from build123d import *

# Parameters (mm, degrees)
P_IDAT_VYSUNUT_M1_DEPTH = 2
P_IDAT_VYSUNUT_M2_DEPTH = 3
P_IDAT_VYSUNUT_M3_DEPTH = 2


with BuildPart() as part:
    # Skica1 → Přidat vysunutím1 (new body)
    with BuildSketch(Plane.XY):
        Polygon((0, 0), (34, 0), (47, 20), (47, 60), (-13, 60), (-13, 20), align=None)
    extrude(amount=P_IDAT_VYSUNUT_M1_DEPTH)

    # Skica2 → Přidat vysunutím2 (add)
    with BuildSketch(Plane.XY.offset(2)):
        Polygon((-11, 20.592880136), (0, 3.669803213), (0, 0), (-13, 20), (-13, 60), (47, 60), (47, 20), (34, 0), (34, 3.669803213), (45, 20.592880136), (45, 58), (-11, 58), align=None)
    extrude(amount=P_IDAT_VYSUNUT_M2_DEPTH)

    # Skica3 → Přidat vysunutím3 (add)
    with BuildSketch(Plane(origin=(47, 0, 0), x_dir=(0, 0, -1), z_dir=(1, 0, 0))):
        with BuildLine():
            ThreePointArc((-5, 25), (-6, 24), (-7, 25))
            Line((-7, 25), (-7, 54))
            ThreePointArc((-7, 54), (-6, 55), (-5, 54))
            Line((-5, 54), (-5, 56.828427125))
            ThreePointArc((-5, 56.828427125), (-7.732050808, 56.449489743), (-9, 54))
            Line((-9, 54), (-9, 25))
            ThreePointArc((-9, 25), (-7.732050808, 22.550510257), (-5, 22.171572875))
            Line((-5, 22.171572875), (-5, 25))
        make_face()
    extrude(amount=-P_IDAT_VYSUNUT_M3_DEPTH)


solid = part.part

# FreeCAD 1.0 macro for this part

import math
import FreeCAD as App
import Part
import Sketcher

V = App.Vector

doc = App.newDocument("Part")
params = doc.addObject("Spreadsheet::Sheet", "Params")
for row, (alias, value) in enumerate([
    ("sketch1_width", "34 mm"),
    ("sketch1_width2", "60 mm"),
    ("sketch1_height", "40 mm"),
    ("pad1_length", "2 mm"),
    ("sketch2_width", "56 mm"),
    ("sketch2_width2", "60 mm"),
    ("sketch2_height", "40 mm"),
    ("pad2_length", "3 mm"),
    ("sketch3_radius", "1 mm"),
    ("sketch3_radius2", "3 mm"),
    ("sketch3_width", "29 mm"),
    ("pad3_length", "2 mm"),
], start=1):
    params.set(f"A{row}", alias)
    params.set(f"B{row}", "=" + value)
    params.setAlias(f"B{row}", alias)

body = doc.addObject("PartDesign::Body", "Body")

sketch1 = doc.addObject("Sketcher::SketchObject", "Sketch")
body.addObject(sketch1)
sketch1.AttachmentSupport = (doc.XY_Plane, [""])
sketch1.MapMode = "FlatFace"
sketch1.addGeometry([
    Part.LineSegment(V(0, 0, 0), V(34, 0, 0)),
    Part.LineSegment(V(34, 0, 0), V(47, 20, 0)),
    Part.LineSegment(V(47, 20, 0), V(47, 60, 0)),
    Part.LineSegment(V(47, 60, 0), V(-13, 60, 0)),
    Part.LineSegment(V(-13, 60, 0), V(-13, 20, 0)),
    Part.LineSegment(V(-13, 20, 0), V(0, 0, 0)),
], False)
sketch1.addConstraint([
    Sketcher.Constraint("Coincident", 0, 2, 1, 1),
    Sketcher.Constraint("Coincident", 1, 2, 2, 1),
    Sketcher.Constraint("Coincident", 2, 2, 3, 1),
    Sketcher.Constraint("Coincident", 3, 2, 4, 1),
    Sketcher.Constraint("Coincident", 4, 2, 5, 1),
    Sketcher.Constraint("Coincident", 5, 2, 0, 1),
    Sketcher.Constraint("Horizontal", 0),
    Sketcher.Constraint("Vertical", 2),
    Sketcher.Constraint("Horizontal", 3),
    Sketcher.Constraint("Vertical", 4),
    Sketcher.Constraint("Coincident", 5, 2, -1, 1),
    Sketcher.Constraint("Horizontal", 1, 2, 4, 2),
    Sketcher.Constraint("Equal", 1, 5),
    Sketcher.Constraint("DistanceX", 0, 1, 0, 2, 34.0),
    Sketcher.Constraint("DistanceX", 3, 2, 3, 1, 60.0),
    Sketcher.Constraint("DistanceY", 2, 1, 2, 2, 40.0),
    Sketcher.Constraint("DistanceY", -1, 1, 1, 2, 20.0),
])
sketch1.setExpression("Constraints[13]", "Params.sketch1_width")
sketch1.setExpression("Constraints[14]", "Params.sketch1_width2")
sketch1.setExpression("Constraints[15]", "Params.sketch1_height")
pad1 = doc.addObject("PartDesign::Pad", "Pad")
body.addObject(pad1)
pad1.Profile = sketch1
pad1.setExpression("Length", "Params.pad1_length")

sketch2 = doc.addObject("Sketcher::SketchObject", "Sketch001")
body.addObject(sketch2)
sketch2.AttachmentSupport = (doc.XY_Plane, [""])
sketch2.MapMode = "FlatFace"
sketch2.AttachmentOffset = App.Placement(V(0, 0, 2), App.Rotation())
sketch2.addGeometry([
    Part.LineSegment(V(0, 3.7, 0), V(-11, 20.6, 0)),
    Part.LineSegment(V(-11, 20.6, 0), V(-11, 58, 0)),
    Part.LineSegment(V(-11, 58, 0), V(45, 58, 0)),
    Part.LineSegment(V(45, 58, 0), V(45, 20.6, 0)),
    Part.LineSegment(V(45, 20.6, 0), V(34, 3.7, 0)),
    Part.LineSegment(V(34, 3.7, 0), V(34, 0, 0)),
    Part.LineSegment(V(34, 0, 0), V(47, 20, 0)),
    Part.LineSegment(V(47, 20, 0), V(47, 60, 0)),
    Part.LineSegment(V(47, 60, 0), V(-13, 60, 0)),
    Part.LineSegment(V(-13, 60, 0), V(-13, 20, 0)),
    Part.LineSegment(V(-13, 20, 0), V(0, 0, 0)),
    Part.LineSegment(V(0, 0, 0), V(0, 3.7, 0)),
], False)
sketch2.addConstraint([
    Sketcher.Constraint("Coincident", 0, 2, 1, 1),
    Sketcher.Constraint("Coincident", 1, 2, 2, 1),
    Sketcher.Constraint("Coincident", 2, 2, 3, 1),
    Sketcher.Constraint("Coincident", 3, 2, 4, 1),
    Sketcher.Constraint("Coincident", 4, 2, 5, 1),
    Sketcher.Constraint("Coincident", 5, 2, 6, 1),
    Sketcher.Constraint("Coincident", 6, 2, 7, 1),
    Sketcher.Constraint("Coincident", 7, 2, 8, 1),
    Sketcher.Constraint("Coincident", 8, 2, 9, 1),
    Sketcher.Constraint("Coincident", 9, 2, 10, 1),
    Sketcher.Constraint("Coincident", 10, 2, 11, 1),
    Sketcher.Constraint("Coincident", 11, 2, 0, 1),
    Sketcher.Constraint("Vertical", 1),
    Sketcher.Constraint("Horizontal", 2),
    Sketcher.Constraint("Vertical", 3),
    Sketcher.Constraint("Vertical", 5),
    Sketcher.Constraint("Vertical", 7),
    Sketcher.Constraint("Horizontal", 8),
    Sketcher.Constraint("Vertical", 9),
    Sketcher.Constraint("Vertical", 11),
    Sketcher.Constraint("Coincident", 10, 2, -1, 1),
    Sketcher.Constraint("PointOnObject", 5, 2, -1),
    Sketcher.Constraint("Parallel", 4, 6),
    Sketcher.Constraint("Parallel", 0, 10),
    Sketcher.Constraint("Horizontal", 0, 2, 3, 2),
    Sketcher.Constraint("Horizontal", 6, 2, 9, 2),
    Sketcher.Constraint("Horizontal", 4, 2, 11, 2),
    Sketcher.Constraint("Equal", 0, 4),
    Sketcher.Constraint("DistanceX", 2, 1, 2, 2, 56.0),
    Sketcher.Constraint("DistanceX", 8, 2, 8, 1, 60.0),
    Sketcher.Constraint("DistanceY", 7, 1, 7, 2, 40.0),
    Sketcher.Constraint("DistanceX", 0, 2, -1, 1, 11.0),
    Sketcher.Constraint("DistanceY", -1, 1, 1, 2, 58.0),
    Sketcher.Constraint("DistanceY", -1, 1, 6, 2, 20.0),
    Sketcher.Constraint("DistanceY", 1, 1, 1, 2, 37.40712),
])
sketch2.setExpression("Constraints[28]", "Params.sketch2_width")
sketch2.setExpression("Constraints[29]", "Params.sketch2_width2")
sketch2.setExpression("Constraints[30]", "Params.sketch2_height")
pad2 = doc.addObject("PartDesign::Pad", "Pad001")
body.addObject(pad2)
pad2.Profile = sketch2
pad2.setExpression("Length", "Params.pad2_length")

sketch3 = doc.addObject("Sketcher::SketchObject", "Sketch002")
body.addObject(sketch3)
sketch3.AttachmentSupport = (doc.YZ_Plane, [""])
sketch3.MapMode = "FlatFace"
sketch3.AttachmentOffset = App.Placement(V(0, 0, 47), App.Rotation())
sketch3.addGeometry([
    Part.ArcOfCircle(Part.Circle(V(25, 6, 0), V(0, 0, 1), 1), math.radians(90), math.radians(270)),
    Part.LineSegment(V(25, 7, 0), V(54, 7, 0)),
    Part.ArcOfCircle(Part.Circle(V(54, 6, 0), V(0, 0, 1), 1), math.radians(-90), math.radians(90)),
    Part.LineSegment(V(54, 5, 0), V(56.8, 5, 0)),
    Part.ArcOfCircle(Part.Circle(V(54, 6, 0), V(0, 0, 1), 3), math.radians(-19), math.radians(90)),
    Part.LineSegment(V(54, 9, 0), V(25, 9, 0)),
    Part.ArcOfCircle(Part.Circle(V(25, 6, 0), V(0, 0, 1), 3), math.radians(90), math.radians(199)),
    Part.LineSegment(V(22.2, 5, 0), V(25, 5, 0)),
], False)
sketch3.addConstraint([
    Sketcher.Constraint("Tangent", 0, 1, 1, 1),
    Sketcher.Constraint("Tangent", 1, 2, 2, 2),
    Sketcher.Constraint("Tangent", 2, 1, 3, 1),
    Sketcher.Constraint("Coincident", 3, 2, 4, 1),
    Sketcher.Constraint("Tangent", 4, 2, 5, 1),
    Sketcher.Constraint("Tangent", 5, 2, 6, 1),
    Sketcher.Constraint("Coincident", 6, 2, 7, 1),
    Sketcher.Constraint("Tangent", 7, 2, 0, 2),
    Sketcher.Constraint("Horizontal", 1),
    Sketcher.Constraint("Horizontal", 3),
    Sketcher.Constraint("Horizontal", 5),
    Sketcher.Constraint("Horizontal", 7),
    Sketcher.Constraint("Coincident", 4, 3, 2, 3),
    Sketcher.Constraint("Coincident", 6, 3, 0, 3),
    Sketcher.Constraint("Equal", 0, 2),
    Sketcher.Constraint("Radius", 0, 1.0),
    Sketcher.Constraint("Radius", 4, 3.0),
    Sketcher.Constraint("DistanceX", 1, 1, 1, 2, 29.0),
    Sketcher.Constraint("DistanceX", -1, 1, 0, 3, 25.0),
    Sketcher.Constraint("DistanceY", -1, 1, 0, 3, 6.0),
])
sketch3.setExpression("Constraints[15]", "Params.sketch3_radius")
sketch3.setExpression("Constraints[16]", "Params.sketch3_radius2")
sketch3.setExpression("Constraints[17]", "Params.sketch3_width")
pad3 = doc.addObject("PartDesign::Pad", "Pad002")
body.addObject(pad3)
pad3.Profile = sketch3
pad3.setExpression("Length", "Params.pad3_length")
pad3.Reversed = True

doc.recompute()
